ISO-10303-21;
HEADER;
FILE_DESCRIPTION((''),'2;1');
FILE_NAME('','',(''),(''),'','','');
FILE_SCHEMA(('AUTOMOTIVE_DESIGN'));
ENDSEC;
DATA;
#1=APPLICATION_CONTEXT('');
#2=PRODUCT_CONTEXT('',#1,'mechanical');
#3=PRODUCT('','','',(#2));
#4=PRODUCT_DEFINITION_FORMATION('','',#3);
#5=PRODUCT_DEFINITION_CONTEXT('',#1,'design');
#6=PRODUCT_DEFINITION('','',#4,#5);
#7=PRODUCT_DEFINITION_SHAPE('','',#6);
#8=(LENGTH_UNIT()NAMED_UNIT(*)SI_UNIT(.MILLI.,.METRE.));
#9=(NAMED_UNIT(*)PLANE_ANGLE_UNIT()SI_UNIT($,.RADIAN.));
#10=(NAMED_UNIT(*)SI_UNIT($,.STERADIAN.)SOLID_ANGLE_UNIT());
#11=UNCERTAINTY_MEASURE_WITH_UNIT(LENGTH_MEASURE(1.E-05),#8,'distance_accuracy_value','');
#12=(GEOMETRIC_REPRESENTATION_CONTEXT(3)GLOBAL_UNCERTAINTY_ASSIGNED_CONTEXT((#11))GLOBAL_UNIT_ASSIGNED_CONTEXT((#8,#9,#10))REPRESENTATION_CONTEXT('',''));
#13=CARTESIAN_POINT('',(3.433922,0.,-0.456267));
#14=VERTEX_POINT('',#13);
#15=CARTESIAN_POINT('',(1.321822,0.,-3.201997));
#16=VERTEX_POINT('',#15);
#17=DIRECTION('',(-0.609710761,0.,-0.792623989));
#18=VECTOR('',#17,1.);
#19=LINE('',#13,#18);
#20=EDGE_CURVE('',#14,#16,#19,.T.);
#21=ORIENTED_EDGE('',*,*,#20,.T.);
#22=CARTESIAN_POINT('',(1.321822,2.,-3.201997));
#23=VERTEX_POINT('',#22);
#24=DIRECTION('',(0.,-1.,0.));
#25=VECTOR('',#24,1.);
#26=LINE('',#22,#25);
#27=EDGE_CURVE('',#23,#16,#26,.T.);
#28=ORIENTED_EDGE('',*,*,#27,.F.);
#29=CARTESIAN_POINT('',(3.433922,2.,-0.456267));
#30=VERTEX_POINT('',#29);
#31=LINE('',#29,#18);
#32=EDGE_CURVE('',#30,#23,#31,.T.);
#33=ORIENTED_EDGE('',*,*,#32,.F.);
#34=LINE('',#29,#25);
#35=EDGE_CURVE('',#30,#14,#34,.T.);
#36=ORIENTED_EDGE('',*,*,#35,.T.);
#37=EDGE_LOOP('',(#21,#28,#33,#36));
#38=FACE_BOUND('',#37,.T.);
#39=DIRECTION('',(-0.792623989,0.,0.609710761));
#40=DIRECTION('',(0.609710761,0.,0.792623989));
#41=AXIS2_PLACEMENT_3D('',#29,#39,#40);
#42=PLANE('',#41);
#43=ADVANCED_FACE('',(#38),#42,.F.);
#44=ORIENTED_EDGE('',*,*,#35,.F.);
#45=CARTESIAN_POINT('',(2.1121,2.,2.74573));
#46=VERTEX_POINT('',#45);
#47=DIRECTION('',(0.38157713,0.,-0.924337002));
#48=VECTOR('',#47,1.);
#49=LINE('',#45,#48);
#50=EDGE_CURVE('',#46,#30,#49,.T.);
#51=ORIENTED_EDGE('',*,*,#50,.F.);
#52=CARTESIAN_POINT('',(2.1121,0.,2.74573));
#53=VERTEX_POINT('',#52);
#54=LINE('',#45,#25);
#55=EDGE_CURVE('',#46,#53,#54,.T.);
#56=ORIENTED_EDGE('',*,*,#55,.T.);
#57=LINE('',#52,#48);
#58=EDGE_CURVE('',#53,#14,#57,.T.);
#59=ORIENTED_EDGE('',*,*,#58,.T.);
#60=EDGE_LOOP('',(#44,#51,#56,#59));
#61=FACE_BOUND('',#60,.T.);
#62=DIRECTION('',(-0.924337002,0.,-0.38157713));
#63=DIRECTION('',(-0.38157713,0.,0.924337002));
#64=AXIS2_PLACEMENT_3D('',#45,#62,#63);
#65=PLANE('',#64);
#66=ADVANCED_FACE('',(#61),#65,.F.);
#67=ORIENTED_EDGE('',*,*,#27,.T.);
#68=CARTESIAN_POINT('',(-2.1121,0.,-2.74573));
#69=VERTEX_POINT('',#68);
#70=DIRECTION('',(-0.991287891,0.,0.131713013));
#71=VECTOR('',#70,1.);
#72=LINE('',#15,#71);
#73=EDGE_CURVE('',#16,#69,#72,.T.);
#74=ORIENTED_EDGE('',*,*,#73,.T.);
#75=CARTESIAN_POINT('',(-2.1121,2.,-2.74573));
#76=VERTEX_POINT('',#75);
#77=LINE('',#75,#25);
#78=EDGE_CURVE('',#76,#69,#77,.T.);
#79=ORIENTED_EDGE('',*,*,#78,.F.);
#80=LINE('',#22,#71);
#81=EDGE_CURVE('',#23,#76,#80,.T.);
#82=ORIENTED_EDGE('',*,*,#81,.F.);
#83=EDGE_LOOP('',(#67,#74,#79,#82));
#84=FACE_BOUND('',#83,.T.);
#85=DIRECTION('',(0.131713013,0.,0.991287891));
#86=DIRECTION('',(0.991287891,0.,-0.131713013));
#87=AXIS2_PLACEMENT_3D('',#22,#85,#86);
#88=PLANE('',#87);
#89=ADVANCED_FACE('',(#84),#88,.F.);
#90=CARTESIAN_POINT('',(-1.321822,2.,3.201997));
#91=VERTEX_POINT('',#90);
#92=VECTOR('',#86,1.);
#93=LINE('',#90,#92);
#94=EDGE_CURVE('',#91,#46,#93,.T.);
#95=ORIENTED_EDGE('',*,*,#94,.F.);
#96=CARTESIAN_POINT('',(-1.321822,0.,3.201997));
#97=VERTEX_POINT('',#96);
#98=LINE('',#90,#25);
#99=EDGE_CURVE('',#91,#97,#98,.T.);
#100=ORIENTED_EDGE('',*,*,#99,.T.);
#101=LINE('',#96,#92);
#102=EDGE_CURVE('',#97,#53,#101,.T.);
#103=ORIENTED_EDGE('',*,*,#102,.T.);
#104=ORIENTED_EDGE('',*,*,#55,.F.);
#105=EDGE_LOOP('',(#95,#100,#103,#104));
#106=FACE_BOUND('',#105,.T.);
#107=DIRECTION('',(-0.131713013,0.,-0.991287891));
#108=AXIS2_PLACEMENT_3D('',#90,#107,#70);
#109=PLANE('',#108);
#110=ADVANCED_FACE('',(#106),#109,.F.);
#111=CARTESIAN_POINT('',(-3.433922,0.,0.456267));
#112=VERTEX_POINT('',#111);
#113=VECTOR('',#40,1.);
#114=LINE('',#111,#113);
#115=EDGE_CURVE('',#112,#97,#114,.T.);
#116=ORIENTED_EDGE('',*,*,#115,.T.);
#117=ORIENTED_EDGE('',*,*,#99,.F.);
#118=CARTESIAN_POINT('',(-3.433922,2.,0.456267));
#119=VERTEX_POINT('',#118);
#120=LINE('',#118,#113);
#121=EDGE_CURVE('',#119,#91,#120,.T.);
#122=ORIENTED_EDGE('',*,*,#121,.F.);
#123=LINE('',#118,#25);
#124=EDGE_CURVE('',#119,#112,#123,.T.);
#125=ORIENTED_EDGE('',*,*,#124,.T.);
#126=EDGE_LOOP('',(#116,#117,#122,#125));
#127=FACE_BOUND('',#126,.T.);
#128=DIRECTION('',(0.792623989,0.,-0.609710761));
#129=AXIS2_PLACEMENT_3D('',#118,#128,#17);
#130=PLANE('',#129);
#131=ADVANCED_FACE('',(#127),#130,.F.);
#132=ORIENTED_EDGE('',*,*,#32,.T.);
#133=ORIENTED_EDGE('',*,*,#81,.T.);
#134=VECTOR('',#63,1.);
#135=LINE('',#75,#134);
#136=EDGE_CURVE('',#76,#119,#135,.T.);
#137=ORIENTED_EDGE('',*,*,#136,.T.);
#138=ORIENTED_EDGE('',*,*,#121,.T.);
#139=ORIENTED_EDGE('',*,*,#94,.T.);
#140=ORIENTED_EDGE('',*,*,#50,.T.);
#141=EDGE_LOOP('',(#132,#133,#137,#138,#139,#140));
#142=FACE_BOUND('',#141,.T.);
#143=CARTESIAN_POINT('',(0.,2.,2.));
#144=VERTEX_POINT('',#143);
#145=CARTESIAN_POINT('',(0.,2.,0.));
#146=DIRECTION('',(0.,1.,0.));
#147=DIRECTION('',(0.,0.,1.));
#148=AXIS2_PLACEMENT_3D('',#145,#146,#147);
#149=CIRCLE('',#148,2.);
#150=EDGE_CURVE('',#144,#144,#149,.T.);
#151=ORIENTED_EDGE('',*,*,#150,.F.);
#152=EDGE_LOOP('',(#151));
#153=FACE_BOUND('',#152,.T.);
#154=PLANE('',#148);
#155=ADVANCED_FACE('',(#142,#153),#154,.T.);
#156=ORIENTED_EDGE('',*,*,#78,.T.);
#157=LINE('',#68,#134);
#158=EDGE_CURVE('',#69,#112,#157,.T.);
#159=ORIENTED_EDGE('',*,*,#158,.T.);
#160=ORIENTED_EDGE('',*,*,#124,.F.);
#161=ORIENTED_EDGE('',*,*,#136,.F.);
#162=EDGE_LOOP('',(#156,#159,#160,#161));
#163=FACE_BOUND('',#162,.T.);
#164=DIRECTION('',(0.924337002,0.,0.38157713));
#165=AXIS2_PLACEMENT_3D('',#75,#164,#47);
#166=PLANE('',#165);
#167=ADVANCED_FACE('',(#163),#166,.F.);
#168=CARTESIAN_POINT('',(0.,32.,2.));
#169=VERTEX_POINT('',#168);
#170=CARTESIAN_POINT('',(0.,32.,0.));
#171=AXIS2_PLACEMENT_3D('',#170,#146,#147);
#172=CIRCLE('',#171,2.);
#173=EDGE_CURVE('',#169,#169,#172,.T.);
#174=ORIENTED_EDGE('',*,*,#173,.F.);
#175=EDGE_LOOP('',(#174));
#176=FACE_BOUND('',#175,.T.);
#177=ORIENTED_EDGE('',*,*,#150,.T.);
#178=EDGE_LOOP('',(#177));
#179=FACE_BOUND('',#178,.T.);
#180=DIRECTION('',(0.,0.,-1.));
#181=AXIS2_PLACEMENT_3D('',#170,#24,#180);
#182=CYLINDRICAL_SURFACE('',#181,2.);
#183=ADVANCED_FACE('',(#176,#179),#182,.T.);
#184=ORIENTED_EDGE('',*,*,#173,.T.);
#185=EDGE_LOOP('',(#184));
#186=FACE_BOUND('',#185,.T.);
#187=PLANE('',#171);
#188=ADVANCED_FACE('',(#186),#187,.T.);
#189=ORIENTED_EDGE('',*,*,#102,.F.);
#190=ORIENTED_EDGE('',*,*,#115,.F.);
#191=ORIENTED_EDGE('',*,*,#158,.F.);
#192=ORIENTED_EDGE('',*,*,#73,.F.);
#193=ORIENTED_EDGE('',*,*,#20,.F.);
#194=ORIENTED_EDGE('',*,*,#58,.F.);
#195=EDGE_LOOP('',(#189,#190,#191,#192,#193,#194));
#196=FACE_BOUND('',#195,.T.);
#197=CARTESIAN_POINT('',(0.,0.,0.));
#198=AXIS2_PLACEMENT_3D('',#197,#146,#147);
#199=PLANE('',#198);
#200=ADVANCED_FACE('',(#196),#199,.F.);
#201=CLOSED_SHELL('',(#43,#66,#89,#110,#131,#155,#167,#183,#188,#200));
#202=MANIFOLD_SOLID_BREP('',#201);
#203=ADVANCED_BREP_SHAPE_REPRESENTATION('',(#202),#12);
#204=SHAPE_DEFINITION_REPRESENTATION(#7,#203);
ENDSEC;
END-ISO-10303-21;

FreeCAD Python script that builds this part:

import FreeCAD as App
import Part
import Sketcher
from FreeCAD import Vector
Q = App.Units.Quantity


def add_polygon(sketch, points):
    """Adds a closed chain of lines whose ends are joined by coincident constraints."""
    first, n = sketch.GeometryCount, len(points)
    for a, b in zip(points, points[1:] + points[:1]):
        sketch.addGeometry(Part.LineSegment(App.Vector(*a, 0), App.Vector(*b, 0)), False)
    for i in range(n):
        sketch.addConstraint(Sketcher.Constraint("Coincident", first + i, 2, first + (i + 1) % n, 1))

doc = App.newDocument("Part")
params = doc.addObject("Spreadsheet::Sheet", "Params")
for row, (alias, value) in enumerate([
    ("pad1_length", "2 mm"),
    ("sketch2_diameter", "4 mm"),
    ("pad2_length", "30 mm"),
], start=1):
    params.set(f"A{row}", alias)
    params.set(f"B{row}", "=" + value)
    params.setAlias(f"B{row}", alias)

body = doc.addObject("PartDesign::Body", "Body")

sketch1 = doc.addObject("Sketcher::SketchObject", "Sketch")
body.addObject(sketch1)
sketch1.AttachmentSupport = (doc.XZ_Plane, [""])
sketch1.MapMode = "FlatFace"
add_polygon(sketch1, [(2.1, 2.7), (3.4, -0.5), (1.3, -3.2), (-2.1, -2.7), (-3.4, 0.5), (-1.3, 3.2)])
sketch1.addConstraint([
    Sketcher.Constraint("Symmetric", 0, 2, 3, 2, -1, 1),
    Sketcher.Constraint("Symmetric", 1, 2, 4, 2, -1, 1),
    Sketcher.Constraint("Symmetric", 2, 2, 5, 2, -1, 1),
    Sketcher.Constraint("Equal", 0, 1),
    Sketcher.Constraint("Equal", 1, 2),
    Sketcher.Constraint("Distance", 0, Q("3.464102 mm")),
    Sketcher.Constraint("DistanceX", 2, 2, -1, 1, Q("2.1121 mm")),
    Sketcher.Constraint("DistanceX", 1, 2, 0, 2, Q("2.1121 mm")),
    Sketcher.Constraint("DistanceX", -1, 1, 0, 2, Q("3.433922 mm")),
])
pad1 = doc.addObject("PartDesign::Pad", "Pad")
body.addObject(pad1)
pad1.Profile = sketch1
pad1.setExpression("Length", "Params.pad1_length")
pad1.Reversed = True

sketch2 = doc.addObject("Sketcher::SketchObject", "Sketch001")
body.addObject(sketch2)
sketch2.AttachmentSupport = (doc.XZ_Plane, [""])
sketch2.MapMode = "FlatFace"
sketch2.AttachmentOffset = App.Placement(Vector(0, 0, -2), App.Rotation())
sketch2.addGeometry(Part.Circle(Vector(0, 0, 0), Vector(0, 0, 1), 2), False)
sketch2.addConstraint([
    Sketcher.Constraint("Coincident", 0, 3, -1, 1),
    Sketcher.Constraint("Diameter", 0, Q("4 mm")),
])
sketch2.setExpression("Constraints[1]", "Params.sketch2_diameter")
pad2 = doc.addObject("PartDesign::Pad", "Pad001")
body.addObject(pad2)
pad2.Profile = sketch2
pad2.setExpression("Length", "Params.pad2_length")
pad2.Reversed = True

doc.recompute()
